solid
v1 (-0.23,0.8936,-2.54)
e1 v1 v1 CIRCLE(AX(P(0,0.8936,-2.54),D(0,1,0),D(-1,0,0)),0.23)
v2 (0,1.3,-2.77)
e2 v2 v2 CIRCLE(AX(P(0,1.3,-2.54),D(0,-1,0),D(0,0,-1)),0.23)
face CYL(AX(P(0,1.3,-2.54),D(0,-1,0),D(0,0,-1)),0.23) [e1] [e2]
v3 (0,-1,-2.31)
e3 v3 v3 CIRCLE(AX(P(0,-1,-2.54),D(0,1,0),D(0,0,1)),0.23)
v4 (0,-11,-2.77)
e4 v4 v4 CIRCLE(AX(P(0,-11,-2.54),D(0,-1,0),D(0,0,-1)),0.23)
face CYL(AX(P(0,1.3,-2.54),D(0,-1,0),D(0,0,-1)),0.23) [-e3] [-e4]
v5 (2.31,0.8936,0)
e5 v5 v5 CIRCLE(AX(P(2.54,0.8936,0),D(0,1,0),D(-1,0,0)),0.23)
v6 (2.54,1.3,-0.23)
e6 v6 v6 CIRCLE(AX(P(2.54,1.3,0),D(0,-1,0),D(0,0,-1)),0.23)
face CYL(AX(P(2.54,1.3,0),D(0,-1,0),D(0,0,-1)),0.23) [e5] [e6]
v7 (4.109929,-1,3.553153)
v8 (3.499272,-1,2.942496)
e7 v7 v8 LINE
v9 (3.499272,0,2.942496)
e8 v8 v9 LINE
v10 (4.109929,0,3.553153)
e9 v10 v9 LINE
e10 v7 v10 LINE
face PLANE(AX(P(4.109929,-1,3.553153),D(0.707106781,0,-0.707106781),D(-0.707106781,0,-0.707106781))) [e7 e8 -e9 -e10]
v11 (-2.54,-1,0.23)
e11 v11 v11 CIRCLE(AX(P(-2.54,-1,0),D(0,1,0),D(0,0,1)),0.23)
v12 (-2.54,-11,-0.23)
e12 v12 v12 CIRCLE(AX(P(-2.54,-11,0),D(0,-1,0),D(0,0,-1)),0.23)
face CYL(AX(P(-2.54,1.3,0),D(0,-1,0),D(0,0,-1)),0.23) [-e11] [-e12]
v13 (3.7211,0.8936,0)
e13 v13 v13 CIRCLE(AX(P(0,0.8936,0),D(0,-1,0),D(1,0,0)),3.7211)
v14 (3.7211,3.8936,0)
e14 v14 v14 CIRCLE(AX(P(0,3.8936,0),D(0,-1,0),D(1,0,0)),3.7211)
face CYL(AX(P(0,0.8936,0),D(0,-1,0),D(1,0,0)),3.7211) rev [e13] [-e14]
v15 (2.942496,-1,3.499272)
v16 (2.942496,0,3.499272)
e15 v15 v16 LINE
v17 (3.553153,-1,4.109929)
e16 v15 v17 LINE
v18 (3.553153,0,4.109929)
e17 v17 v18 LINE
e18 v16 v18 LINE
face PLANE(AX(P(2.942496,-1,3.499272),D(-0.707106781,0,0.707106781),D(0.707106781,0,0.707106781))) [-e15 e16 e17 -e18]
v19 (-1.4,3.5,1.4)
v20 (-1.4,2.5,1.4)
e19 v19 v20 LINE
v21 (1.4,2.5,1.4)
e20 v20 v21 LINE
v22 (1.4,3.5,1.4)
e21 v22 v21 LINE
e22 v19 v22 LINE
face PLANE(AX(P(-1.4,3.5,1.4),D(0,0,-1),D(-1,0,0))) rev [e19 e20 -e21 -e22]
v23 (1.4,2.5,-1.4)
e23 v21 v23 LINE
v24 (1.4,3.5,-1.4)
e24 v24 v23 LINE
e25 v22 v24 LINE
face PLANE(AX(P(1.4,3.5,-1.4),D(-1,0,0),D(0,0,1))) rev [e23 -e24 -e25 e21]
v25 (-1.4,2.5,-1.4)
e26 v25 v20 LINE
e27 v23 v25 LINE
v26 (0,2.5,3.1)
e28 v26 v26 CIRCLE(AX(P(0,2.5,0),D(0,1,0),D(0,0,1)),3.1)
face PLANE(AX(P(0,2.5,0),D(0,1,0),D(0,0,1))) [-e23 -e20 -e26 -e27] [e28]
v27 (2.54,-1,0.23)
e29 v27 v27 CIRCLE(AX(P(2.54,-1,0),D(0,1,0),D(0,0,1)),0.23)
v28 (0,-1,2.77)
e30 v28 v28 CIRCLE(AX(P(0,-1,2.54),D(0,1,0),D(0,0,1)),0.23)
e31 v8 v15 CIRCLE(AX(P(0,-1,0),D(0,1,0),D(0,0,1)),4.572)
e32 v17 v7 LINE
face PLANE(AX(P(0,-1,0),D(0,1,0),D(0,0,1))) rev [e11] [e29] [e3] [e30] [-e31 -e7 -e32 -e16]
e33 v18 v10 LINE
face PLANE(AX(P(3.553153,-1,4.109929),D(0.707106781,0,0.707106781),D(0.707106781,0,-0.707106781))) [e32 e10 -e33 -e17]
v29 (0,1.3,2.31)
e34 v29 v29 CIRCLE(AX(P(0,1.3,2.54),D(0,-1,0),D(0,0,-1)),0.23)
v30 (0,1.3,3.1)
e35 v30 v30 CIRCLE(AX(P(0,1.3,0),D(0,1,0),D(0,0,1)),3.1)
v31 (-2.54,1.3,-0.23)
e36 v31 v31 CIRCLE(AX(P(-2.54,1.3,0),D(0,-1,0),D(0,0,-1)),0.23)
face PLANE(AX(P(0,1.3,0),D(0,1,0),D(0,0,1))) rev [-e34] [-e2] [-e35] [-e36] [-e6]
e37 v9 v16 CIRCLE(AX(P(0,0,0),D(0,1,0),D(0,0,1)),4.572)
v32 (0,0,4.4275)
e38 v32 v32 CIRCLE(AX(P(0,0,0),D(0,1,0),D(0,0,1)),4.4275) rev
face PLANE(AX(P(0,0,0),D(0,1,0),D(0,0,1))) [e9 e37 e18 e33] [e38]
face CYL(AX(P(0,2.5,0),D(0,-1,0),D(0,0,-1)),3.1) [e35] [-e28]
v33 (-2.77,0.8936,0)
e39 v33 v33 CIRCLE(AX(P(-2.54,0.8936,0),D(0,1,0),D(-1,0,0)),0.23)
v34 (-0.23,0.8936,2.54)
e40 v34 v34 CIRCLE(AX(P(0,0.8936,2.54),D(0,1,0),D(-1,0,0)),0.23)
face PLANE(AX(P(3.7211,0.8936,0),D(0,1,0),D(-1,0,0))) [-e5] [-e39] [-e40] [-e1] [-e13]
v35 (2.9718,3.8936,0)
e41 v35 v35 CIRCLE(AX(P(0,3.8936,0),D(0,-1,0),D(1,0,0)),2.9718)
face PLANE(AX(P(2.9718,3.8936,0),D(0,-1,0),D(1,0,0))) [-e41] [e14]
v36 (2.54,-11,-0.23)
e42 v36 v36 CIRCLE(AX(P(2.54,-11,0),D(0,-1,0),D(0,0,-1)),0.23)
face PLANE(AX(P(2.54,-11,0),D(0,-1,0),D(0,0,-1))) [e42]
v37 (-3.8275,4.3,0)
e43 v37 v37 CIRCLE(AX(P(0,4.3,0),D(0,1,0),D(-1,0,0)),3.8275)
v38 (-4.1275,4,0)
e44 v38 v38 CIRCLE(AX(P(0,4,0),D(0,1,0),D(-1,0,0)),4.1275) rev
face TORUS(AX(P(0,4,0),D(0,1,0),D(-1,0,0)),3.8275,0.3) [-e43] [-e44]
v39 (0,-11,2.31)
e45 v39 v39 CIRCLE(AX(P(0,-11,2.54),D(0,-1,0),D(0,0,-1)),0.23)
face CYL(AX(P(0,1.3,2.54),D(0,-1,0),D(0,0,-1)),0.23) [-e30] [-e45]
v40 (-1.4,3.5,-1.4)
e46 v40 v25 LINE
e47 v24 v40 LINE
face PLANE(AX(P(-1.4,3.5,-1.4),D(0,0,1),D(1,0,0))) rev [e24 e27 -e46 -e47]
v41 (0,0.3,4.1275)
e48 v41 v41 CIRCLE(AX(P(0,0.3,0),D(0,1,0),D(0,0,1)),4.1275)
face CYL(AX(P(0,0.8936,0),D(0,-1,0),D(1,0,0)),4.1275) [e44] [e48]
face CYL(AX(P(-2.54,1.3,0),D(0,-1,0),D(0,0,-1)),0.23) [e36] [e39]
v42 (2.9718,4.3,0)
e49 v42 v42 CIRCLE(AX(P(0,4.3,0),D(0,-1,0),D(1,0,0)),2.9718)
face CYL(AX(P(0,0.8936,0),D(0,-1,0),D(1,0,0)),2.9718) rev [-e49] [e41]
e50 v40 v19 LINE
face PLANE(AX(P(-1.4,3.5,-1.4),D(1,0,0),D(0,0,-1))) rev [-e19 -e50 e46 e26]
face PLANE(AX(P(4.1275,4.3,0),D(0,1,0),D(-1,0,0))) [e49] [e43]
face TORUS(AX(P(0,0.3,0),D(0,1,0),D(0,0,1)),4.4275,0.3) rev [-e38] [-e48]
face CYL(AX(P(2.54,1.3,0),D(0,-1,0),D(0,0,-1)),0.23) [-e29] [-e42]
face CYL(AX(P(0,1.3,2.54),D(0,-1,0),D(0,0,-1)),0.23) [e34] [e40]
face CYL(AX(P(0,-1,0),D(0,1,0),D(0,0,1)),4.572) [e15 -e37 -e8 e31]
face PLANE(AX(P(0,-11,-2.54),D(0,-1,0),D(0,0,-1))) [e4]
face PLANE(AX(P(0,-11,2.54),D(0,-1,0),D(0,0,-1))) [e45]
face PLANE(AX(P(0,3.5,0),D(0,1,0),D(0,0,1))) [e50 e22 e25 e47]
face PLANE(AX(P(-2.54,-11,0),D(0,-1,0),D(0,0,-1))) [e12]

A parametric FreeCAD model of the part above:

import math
import FreeCAD as App
import Part
import Sketcher
Q = App.Units.Quantity


def edges_at(feature, points):
    """Names of the edges that pass closest to the given points."""
    edges = feature.Shape.Edges
    near = lambda p: min(range(len(edges)), key=lambda i: edges[i].distToShape(Part.Vertex(*p))[0])
    return sorted({f"Edge{near(p) + 1}" for p in points})


def add_polygon(sketch, points):
    """Adds a closed chain of lines whose ends are joined by coincident constraints."""
    first, n = sketch.GeometryCount, len(points)
    for a, b in zip(points, points[1:] + points[:1]):
        sketch.addGeometry(Part.LineSegment(App.Vector(*a, 0), App.Vector(*b, 0)), False)
    for i in range(n):
        sketch.addConstraint(Sketcher.Constraint("Coincident", first + i, 2, first + (i + 1) % n, 1))

doc = App.newDocument("Part")
body = doc.addObject("PartDesign::Body", "Body")

# Sketch on XZ plane
sketch1 = body.newObject("Sketcher::SketchObject", "Sketch")
sketch1.AttachmentSupport = (doc.getObject("XZ_Plane"), [""])
sketch1.MapMode = "FlatFace"
sketch1.addGeometry(Part.LineSegment(App.Vector(2.9, 3.5, 0), App.Vector(3.6, 4.1, 0)), False)
sketch1.addGeometry(Part.LineSegment(App.Vector(3.6, 4.1, 0), App.Vector(4.1, 3.6, 0)), False)
sketch1.addGeometry(Part.LineSegment(App.Vector(4.1, 3.6, 0), App.Vector(3.5, 2.9, 0)), False)
sketch1.addGeometry(Part.ArcOfCircle(Part.Circle(App.Vector(0, 0, 0), App.Vector(0, 0, 1), 4.6), math.radians(50), math.radians(400)), False)
sketch1.addConstraint(Sketcher.Constraint("Coincident", 0, 2, 1, 1))
sketch1.addConstraint(Sketcher.Constraint("Coincident", 1, 2, 2, 1))
sketch1.addConstraint(Sketcher.Constraint("Coincident", 2, 2, 3, 2))
sketch1.addConstraint(Sketcher.Constraint("Coincident", 3, 1, 0, 1))
sketch1.addConstraint(Sketcher.Constraint("Coincident", 3, 3, -1, 1))
sketch1.addConstraint(Sketcher.Constraint("Perpendicular", 0, 1))
sketch1.addConstraint(Sketcher.Constraint("Perpendicular", 1, 2))
sketch1.addConstraint(Sketcher.Constraint("Equal", 0, 2))
sketch1.addConstraint(Sketcher.Constraint("Angle", 0, Q("45 deg")))
sketch1.addConstraint(Sketcher.Constraint("Radius", 3, 4.572))
sketch1.addConstraint(Sketcher.Constraint("Distance", 0, 0.8636))
sketch1.addConstraint(Sketcher.Constraint("Distance", 1, 0.7874))
pad1 = body.newObject("PartDesign::Pad", "Pad")
pad1.Profile = sketch1
pad1.Length = 1

# Sketch on XY plane
sketch2 = body.newObject("Sketcher::SketchObject", "Sketch001")
sketch2.AttachmentSupport = (doc.getObject("XY_Plane"), [""])
sketch2.MapMode = "FlatFace"
add_polygon(sketch2, [(4.13, 4.3), (2.97, 4.3), (2.97, 3.89), (3.72, 3.89), (3.72, 0.89), (0, 0.89), (0, 0), (4.13, 0)])  # lines 0-7
sketch2.addConstraint(Sketcher.Constraint("Horizontal", 0))
sketch2.addConstraint(Sketcher.Constraint("Vertical", 1))
sketch2.addConstraint(Sketcher.Constraint("Horizontal", 2))
sketch2.addConstraint(Sketcher.Constraint("Vertical", 3))
sketch2.addConstraint(Sketcher.Constraint("Horizontal", 4))
sketch2.addConstraint(Sketcher.Constraint("Vertical", 5))
sketch2.addConstraint(Sketcher.Constraint("Horizontal", 6))
sketch2.addConstraint(Sketcher.Constraint("Vertical", 7))
sketch2.addConstraint(Sketcher.Constraint("Coincident", 5, 2, -1, 1))
sketch2.addConstraint(Sketcher.Constraint("DistanceY", 3, 2, 3, 1, 3.0))
sketch2.addConstraint(Sketcher.Constraint("DistanceY", 7, 1, 7, 2, 4.3))
sketch2.addConstraint(Sketcher.Constraint("DistanceX", 0, 2, 0, 1, 1.1557))
sketch2.addConstraint(Sketcher.Constraint("DistanceX", 2, 1, 2, 2, 0.7493))
sketch2.addConstraint(Sketcher.Constraint("DistanceX", 4, 2, 4, 1, 3.7211))
sketch2.addConstraint(Sketcher.Constraint("DistanceY", 1, 2, 1, 1, 0.4064))
revolution = body.newObject("PartDesign::Revolution", "Revolution")
revolution.Profile = sketch2
revolution.ReferenceAxis = (sketch2, ["V_Axis"])
revolution.Angle = 360
doc.recompute()

fillet = body.newObject("PartDesign::Fillet", "Fillet")
fillet.Base = (revolution, edges_at(revolution, [(-4.128, 0, 0), (-4.128, 4.3, 0)]))
fillet.Radius = 0.3

# Sketch on XZ plane
sketch3 = body.newObject("Sketcher::SketchObject", "Sketch002")
sketch3.AttachmentSupport = (doc.getObject("XZ_Plane"), [""])
sketch3.MapMode = "FlatFace"
sketch3.AttachmentOffset = App.Placement(App.Vector(0, 0, 1), App.Rotation())
sketch3.addGeometry(Part.Circle(App.Vector(0, -2.54, 0), App.Vector(0, 0, 1), 0.23), False)
sketch3.addGeometry(Part.Circle(App.Vector(-2.54, 0, 0), App.Vector(0, 0, 1), 0.23), False)
sketch3.addGeometry(Part.Circle(App.Vector(0, 2.54, 0), App.Vector(0, 0, 1), 0.23), False)
sketch3.addGeometry(Part.Circle(App.Vector(2.54, 0, 0), App.Vector(0, 0, 1), 0.23), False)
sketch3.addConstraint(Sketcher.Constraint("Equal", 0, 1))
sketch3.addConstraint(Sketcher.Constraint("Equal", 1, 2))
sketch3.addConstraint(Sketcher.Constraint("Equal", 2, 3))
sketch3.addConstraint(Sketcher.Constraint("Symmetric", 0, 3, 2, 3, -1, 1))
sketch3.addConstraint(Sketcher.Constraint("Symmetric", 1, 3, 3, 3, -1, 1))
sketch3.addConstraint(Sketcher.Constraint("PointOnObject", 0, 3, -2))
sketch3.addConstraint(Sketcher.Constraint("PointOnObject", 1, 3, -1))
sketch3.addConstraint(Sketcher.Constraint("Diameter", 0, 0.46))
sketch3.addConstraint(Sketcher.Constraint("DistanceY", 0, 3, -1, 1, 2.54))
sketch3.addConstraint(Sketcher.Constraint("DistanceX", 1, 3, -1, 1, 2.54))
pad2 = body.newObject("PartDesign::Pad", "Pad001")
pad2.Profile = sketch3
pad2.Type = "TwoLengths"
pad2.Length = 10
pad2.Length2 = 2.3

# Sketch on XZ plane
sketch4 = body.newObject("Sketcher::SketchObject", "Sketch003")
sketch4.AttachmentSupport = (doc.getObject("XZ_Plane"), [""])
sketch4.MapMode = "FlatFace"
sketch4.AttachmentOffset = App.Placement(App.Vector(0, 0, -1.3), App.Rotation())
sketch4.addGeometry(Part.Circle(App.Vector(0, 0, 0), App.Vector(0, 0, 1), 3.1), False)
sketch4.addConstraint(Sketcher.Constraint("Coincident", 0, 3, -1, 1))
sketch4.addConstraint(Sketcher.Constraint("Diameter", 0, 6.2))
pad3 = body.newObject("PartDesign::Pad", "Pad002")
pad3.Profile = sketch4
pad3.Length = 1.2
pad3.Reversed = True

# Sketch on XZ plane
sketch5 = body.newObject("Sketcher::SketchObject", "Sketch004")
sketch5.AttachmentSupport = (doc.getObject("XZ_Plane"), [""])
sketch5.MapMode = "FlatFace"
sketch5.AttachmentOffset = App.Placement(App.Vector(0, 0, -2.5), App.Rotation())
add_polygon(sketch5, [(-1.4, -1.4), (-1.4, 1.4), (1.4, 1.4), (1.4, -1.4)])  # lines 0-3
sketch5.addConstraint(Sketcher.Constraint("Vertical", 0))
sketch5.addConstraint(Sketcher.Constraint("Horizontal", 1))
sketch5.addConstraint(Sketcher.Constraint("Vertical", 2))
sketch5.addConstraint(Sketcher.Constraint("Horizontal", 3))
sketch5.addConstraint(Sketcher.Constraint("Symmetric", 0, 2, 2, 2, -1, 1))
sketch5.addConstraint(Sketcher.Constraint("Equal", 3, 0))
sketch5.addConstraint(Sketcher.Constraint("DistanceX", 1, 1, 1, 2, 2.8))
pad4 = body.newObject("PartDesign::Pad", "Pad003")
pad4.Profile = sketch5
pad4.Length = 1
pad4.Reversed = True

doc.recompute()
